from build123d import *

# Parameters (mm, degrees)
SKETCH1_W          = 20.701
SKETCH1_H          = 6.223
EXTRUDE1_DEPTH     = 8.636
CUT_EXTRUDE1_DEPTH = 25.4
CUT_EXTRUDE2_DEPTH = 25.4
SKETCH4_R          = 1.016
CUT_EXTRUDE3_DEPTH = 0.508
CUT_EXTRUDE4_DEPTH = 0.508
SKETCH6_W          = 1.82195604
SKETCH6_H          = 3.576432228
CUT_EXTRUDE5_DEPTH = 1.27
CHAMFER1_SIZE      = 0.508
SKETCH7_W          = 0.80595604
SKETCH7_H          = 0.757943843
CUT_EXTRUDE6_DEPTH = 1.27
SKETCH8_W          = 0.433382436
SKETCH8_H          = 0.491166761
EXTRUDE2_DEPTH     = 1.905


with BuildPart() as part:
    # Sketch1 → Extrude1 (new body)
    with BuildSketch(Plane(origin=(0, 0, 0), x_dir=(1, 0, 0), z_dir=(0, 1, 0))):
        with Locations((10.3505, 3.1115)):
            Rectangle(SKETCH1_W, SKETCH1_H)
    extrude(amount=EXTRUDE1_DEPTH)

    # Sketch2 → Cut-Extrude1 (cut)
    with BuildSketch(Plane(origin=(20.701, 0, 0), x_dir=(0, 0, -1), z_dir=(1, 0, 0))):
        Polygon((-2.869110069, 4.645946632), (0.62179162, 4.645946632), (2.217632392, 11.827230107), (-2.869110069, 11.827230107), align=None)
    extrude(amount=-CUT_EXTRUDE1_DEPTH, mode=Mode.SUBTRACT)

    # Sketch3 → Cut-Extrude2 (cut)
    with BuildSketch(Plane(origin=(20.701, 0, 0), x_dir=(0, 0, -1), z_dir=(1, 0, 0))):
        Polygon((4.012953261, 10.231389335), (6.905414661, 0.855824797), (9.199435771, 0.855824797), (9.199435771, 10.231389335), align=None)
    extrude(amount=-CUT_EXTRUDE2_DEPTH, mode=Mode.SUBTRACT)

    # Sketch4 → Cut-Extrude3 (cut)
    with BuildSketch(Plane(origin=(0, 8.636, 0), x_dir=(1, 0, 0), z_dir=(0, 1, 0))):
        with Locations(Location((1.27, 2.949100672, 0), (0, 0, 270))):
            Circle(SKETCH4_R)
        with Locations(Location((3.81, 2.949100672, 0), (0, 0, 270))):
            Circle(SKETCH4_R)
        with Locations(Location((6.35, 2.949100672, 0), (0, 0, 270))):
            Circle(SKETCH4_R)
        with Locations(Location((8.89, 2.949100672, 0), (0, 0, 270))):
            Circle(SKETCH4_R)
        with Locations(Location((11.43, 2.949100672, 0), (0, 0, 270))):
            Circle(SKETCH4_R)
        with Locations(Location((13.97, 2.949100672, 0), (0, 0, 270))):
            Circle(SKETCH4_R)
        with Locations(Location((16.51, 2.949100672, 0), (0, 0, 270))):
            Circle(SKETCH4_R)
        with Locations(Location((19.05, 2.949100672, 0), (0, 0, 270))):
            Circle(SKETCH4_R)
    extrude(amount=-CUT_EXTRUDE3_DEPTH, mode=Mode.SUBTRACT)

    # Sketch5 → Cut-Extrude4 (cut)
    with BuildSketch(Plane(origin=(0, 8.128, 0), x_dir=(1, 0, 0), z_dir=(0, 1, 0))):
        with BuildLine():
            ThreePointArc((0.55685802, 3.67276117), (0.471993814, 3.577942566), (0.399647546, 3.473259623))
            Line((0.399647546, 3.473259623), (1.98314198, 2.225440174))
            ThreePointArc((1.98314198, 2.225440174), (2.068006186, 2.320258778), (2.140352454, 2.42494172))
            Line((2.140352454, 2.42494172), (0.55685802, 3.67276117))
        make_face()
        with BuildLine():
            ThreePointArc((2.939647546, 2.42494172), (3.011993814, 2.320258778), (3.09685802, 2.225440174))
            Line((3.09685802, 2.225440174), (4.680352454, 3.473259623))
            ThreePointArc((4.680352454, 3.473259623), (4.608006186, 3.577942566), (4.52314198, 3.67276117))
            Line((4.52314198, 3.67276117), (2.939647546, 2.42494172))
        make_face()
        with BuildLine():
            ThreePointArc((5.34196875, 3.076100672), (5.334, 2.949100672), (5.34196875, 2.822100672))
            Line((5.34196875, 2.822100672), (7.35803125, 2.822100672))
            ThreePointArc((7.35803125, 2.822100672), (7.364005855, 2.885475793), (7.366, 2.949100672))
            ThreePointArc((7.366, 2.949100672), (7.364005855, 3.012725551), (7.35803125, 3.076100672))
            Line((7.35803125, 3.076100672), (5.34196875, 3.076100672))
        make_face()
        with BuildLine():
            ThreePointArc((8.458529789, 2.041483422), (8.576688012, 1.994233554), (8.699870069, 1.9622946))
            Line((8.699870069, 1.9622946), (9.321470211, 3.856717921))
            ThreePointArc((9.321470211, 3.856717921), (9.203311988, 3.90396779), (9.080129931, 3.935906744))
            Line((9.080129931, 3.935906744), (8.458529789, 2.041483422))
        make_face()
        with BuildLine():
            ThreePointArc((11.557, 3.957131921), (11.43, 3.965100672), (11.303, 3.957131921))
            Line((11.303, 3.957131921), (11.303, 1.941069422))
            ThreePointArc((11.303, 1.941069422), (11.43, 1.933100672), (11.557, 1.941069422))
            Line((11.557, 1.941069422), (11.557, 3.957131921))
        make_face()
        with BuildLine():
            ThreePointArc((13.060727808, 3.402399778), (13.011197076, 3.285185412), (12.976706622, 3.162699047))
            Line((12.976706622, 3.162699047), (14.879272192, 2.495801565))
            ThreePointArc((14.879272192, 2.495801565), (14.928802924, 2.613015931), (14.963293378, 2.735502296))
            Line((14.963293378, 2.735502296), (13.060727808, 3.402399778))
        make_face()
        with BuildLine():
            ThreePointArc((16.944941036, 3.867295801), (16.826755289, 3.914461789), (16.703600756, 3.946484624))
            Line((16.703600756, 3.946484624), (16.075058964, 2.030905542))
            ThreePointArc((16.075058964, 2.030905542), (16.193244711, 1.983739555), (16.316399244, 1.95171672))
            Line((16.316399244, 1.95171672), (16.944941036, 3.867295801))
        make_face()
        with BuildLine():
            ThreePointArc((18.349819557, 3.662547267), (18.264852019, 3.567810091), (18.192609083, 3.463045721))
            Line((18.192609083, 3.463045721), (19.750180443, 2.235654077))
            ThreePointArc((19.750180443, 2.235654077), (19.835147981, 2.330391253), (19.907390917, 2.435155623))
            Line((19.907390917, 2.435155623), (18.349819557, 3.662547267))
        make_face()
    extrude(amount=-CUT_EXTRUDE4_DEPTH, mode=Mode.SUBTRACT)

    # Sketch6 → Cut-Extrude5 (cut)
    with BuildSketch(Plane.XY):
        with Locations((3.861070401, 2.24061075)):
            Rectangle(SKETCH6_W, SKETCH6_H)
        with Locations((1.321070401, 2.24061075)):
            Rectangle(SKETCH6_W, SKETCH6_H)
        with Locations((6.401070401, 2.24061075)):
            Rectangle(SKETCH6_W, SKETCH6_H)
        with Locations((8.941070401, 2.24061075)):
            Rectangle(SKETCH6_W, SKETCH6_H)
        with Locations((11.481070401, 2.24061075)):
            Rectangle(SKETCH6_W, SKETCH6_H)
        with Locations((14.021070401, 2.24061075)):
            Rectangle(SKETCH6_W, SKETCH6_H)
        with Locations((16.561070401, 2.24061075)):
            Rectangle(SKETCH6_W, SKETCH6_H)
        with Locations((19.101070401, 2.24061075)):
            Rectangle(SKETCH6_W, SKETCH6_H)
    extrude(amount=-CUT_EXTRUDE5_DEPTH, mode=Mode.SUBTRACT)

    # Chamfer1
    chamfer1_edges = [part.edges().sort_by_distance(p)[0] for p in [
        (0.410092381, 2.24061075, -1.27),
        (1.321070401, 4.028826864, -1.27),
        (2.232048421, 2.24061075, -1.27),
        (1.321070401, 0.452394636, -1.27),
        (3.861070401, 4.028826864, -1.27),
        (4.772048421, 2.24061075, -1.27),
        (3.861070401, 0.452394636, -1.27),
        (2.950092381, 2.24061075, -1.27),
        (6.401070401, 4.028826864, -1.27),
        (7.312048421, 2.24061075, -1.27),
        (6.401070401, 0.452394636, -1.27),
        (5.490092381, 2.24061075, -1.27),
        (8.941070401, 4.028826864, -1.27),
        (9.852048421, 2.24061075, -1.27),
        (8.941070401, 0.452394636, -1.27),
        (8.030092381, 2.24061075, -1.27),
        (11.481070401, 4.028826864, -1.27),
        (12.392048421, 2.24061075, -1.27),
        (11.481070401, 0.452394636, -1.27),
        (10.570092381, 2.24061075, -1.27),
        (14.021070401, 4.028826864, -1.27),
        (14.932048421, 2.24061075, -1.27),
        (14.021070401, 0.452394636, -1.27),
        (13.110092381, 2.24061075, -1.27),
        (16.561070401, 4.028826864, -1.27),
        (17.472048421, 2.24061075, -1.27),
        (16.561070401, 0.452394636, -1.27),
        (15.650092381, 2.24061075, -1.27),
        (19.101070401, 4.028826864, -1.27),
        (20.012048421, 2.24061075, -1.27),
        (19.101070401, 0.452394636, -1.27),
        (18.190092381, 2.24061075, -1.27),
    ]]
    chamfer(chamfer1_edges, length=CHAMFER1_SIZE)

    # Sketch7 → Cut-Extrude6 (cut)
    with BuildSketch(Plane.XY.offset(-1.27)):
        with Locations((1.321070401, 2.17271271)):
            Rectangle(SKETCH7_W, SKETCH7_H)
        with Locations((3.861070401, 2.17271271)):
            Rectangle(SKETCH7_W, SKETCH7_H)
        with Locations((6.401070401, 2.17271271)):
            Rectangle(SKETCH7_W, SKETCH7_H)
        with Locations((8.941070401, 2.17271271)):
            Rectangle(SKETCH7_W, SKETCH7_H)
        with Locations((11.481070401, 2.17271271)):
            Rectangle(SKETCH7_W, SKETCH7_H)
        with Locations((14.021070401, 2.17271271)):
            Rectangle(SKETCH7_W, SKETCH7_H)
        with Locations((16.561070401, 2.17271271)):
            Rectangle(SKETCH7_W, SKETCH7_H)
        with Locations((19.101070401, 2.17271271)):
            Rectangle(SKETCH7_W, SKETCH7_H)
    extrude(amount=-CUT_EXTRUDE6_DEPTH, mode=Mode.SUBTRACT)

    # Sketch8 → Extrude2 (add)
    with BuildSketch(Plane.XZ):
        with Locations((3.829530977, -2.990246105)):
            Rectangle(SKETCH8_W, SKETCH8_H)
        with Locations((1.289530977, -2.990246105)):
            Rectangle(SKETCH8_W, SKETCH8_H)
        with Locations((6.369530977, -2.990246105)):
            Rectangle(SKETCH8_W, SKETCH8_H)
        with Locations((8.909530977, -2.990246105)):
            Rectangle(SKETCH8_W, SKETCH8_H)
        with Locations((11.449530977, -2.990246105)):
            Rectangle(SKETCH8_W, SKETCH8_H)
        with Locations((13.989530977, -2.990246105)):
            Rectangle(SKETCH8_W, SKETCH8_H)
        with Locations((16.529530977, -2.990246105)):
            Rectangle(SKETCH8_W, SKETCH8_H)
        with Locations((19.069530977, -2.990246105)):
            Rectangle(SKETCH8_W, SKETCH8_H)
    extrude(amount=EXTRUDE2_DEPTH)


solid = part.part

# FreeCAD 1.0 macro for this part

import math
import FreeCAD as App
import Part
import Sketcher
from FreeCAD import Vector
Q = App.Units.Quantity


def edges_at(feature, points):
    """Names of the edges that pass closest to the given points."""
    edges = feature.Shape.Edges
    near = lambda p: min(range(len(edges)), key=lambda i: edges[i].distToShape(Part.Vertex(*p))[0])
    return sorted({f"Edge{near(p) + 1}" for p in points})


def add_polygon(sketch, points):
    """Adds a closed chain of lines whose ends are joined by coincident constraints."""
    first, n = sketch.GeometryCount, len(points)
    for a, b in zip(points, points[1:] + points[:1]):
        sketch.addGeometry(Part.LineSegment(App.Vector(*a, 0), App.Vector(*b, 0)), False)
    for i in range(n):
        sketch.addConstraint(Sketcher.Constraint("Coincident", first + i, 2, first + (i + 1) % n, 1))

doc = App.newDocument("Part")
body = doc.addObject("PartDesign::Body", "Body")

# Sketch on XZ plane
sketch1 = doc.addObject("Sketcher::SketchObject", "Sketch")
body.addObject(sketch1)
sketch1.AttachmentSupport = (doc.XZ_Plane, [""])
sketch1.MapMode = "FlatFace"
add_polygon(sketch1, [(0, -6), (0, 0), (21, 0), (21, -6)])  # lines 0-3
sketch1.addConstraint([
    Sketcher.Constraint("Vertical", 0),
    Sketcher.Constraint("Horizontal", 1),
    Sketcher.Constraint("Vertical", 2),
    Sketcher.Constraint("Horizontal", 3),
    Sketcher.Constraint("Coincident", 0, 2, -1, 1),
    Sketcher.Constraint("DistanceX", 1, 1, 1, 2, Q("0.815 in")),
    Sketcher.Constraint("DistanceY", 0, 1, 0, 2, Q("0.245 in")),
])
pad1 = doc.addObject("PartDesign::Pad", "Pad")
body.addObject(pad1)
pad1.Profile = sketch1
pad1.Length = Q("0.34 in")
pad1.Reversed = True

# Sketch on YZ plane
sketch2 = doc.addObject("Sketcher::SketchObject", "Sketch001")
body.addObject(sketch2)
sketch2.AttachmentSupport = (doc.YZ_Plane, [""])
sketch2.MapMode = "FlatFace"
sketch2.AttachmentOffset = App.Placement(Vector(0, 0, 0.815 * 25.4), App.Rotation())
add_polygon(sketch2, [(4.6, 2.9), (4.6, -0.6), (11.8, -2.2), (11.8, 2.9)])  # lines 0-3
sketch2.addConstraint([
    Sketcher.Constraint("Vertical", 0),
    Sketcher.Constraint("Vertical", 2),
    Sketcher.Constraint("Horizontal", 3),
    Sketcher.Constraint("DistanceY", 0, 2, 0, 1, 3.490902),
    Sketcher.Constraint("DistanceX", 3, 2, 3, 1, 7.181283),
    Sketcher.Constraint("DistanceY", 2, 1, 2, 2, 5.086742),
    Sketcher.Constraint("DistanceY", 0, 2, -1, 1, 0.621792),
    Sketcher.Constraint("DistanceX", -1, 1, 1, 2, 11.82723),
])
pocket1 = doc.addObject("PartDesign::Pocket", "Pocket")
body.addObject(pocket1)
pocket1.Profile = sketch2
pocket1.Length = Q("1 in")

# Sketch on YZ plane
sketch3 = doc.addObject("Sketcher::SketchObject", "Sketch002")
body.addObject(sketch3)
sketch3.AttachmentSupport = (doc.YZ_Plane, [""])
sketch3.MapMode = "FlatFace"
sketch3.AttachmentOffset = App.Placement(Vector(0, 0, 0.815 * 25.4), App.Rotation())
add_polygon(sketch3, [(10.2, -4), (0.9, -6.9), (0.9, -9.2), (10.2, -9.2)])  # lines 0-3
sketch3.addConstraint([
    Sketcher.Constraint("Vertical", 1),
    Sketcher.Constraint("Horizontal", 2),
    Sketcher.Constraint("Vertical", 3),
    Sketcher.Constraint("DistanceY", 1, 2, 1, 1, 2.294021),
    Sketcher.Constraint("DistanceX", 2, 1, 2, 2, 9.375565),
    Sketcher.Constraint("DistanceY", 3, 1, 3, 2, 5.186483),
    Sketcher.Constraint("DistanceX", -1, 1, 2, 2, 10.231389),
    Sketcher.Constraint("DistanceY", 0, 2, -1, 1, 6.905415),
])
pocket2 = doc.addObject("PartDesign::Pocket", "Pocket001")
body.addObject(pocket2)
pocket2.Profile = sketch3
pocket2.Length = Q("1 in")

# Sketch on XZ plane
sketch4 = doc.addObject("Sketcher::SketchObject", "Sketch003")
body.addObject(sketch4)
sketch4.AttachmentSupport = (doc.XZ_Plane, [""])
sketch4.MapMode = "FlatFace"
sketch4.AttachmentOffset = App.Placement(Vector(0, 0, -0.34 * 25.4), App.Rotation())
sketch4.addGeometry([
    Part.Circle(Vector(1.3, -2.9, 0), Vector(0, 0, 1), 1),  # 0
    Part.Circle(Vector(3.8, -2.9, 0), Vector(0, 0, 1), 1),  # 1
    Part.Circle(Vector(6.3, -2.9, 0), Vector(0, 0, 1), 1),  # 2
    Part.Circle(Vector(8.9, -2.9, 0), Vector(0, 0, 1), 1),  # 3
    Part.Circle(Vector(11.4, -2.9, 0), Vector(0, 0, 1), 1),  # 4
    Part.Circle(Vector(14, -2.9, 0), Vector(0, 0, 1), 1),  # 5
    Part.Circle(Vector(16.5, -2.9, 0), Vector(0, 0, 1), 1),  # 6
    Part.Circle(Vector(19.1, -2.9, 0), Vector(0, 0, 1), 1),  # 7
], False)
sketch4.addConstraint([
    Sketcher.Constraint("Equal", 0, 1),
    Sketcher.Constraint("Equal", 1, 2),
    Sketcher.Constraint("Equal", 2, 3),
    Sketcher.Constraint("Equal", 3, 4),
    Sketcher.Constraint("Equal", 4, 5),
    Sketcher.Constraint("Equal", 5, 6),
    Sketcher.Constraint("Equal", 6, 7),
    Sketcher.Constraint("Horizontal", 0, 3, 1, 3),
    Sketcher.Constraint("Horizontal", 1, 3, 2, 3),
    Sketcher.Constraint("Horizontal", 2, 3, 3, 3),
    Sketcher.Constraint("Horizontal", 3, 3, 4, 3),
    Sketcher.Constraint("Horizontal", 4, 3, 5, 3),
    Sketcher.Constraint("Horizontal", 5, 3, 6, 3),
    Sketcher.Constraint("Horizontal", 6, 3, 7, 3),
    Sketcher.Constraint("Diameter", 0, Q("0.08 in")),
    Sketcher.Constraint("DistanceX", 0, 3, 1, 3, Q("0.1 in")),
    Sketcher.Constraint("DistanceX", 1, 3, 2, 3, Q("0.1 in")),
    Sketcher.Constraint("DistanceX", 2, 3, 3, 3, Q("0.1 in")),
    Sketcher.Constraint("DistanceX", 3, 3, 4, 3, Q("0.1 in")),
    Sketcher.Constraint("DistanceX", 4, 3, 5, 3, Q("0.1 in")),
    Sketcher.Constraint("DistanceX", 5, 3, 6, 3, Q("0.1 in")),
    Sketcher.Constraint("DistanceX", 6, 3, 7, 3, Q("0.1 in")),
    Sketcher.Constraint("DistanceX", -1, 1, 0, 3, Q("0.05 in")),
    Sketcher.Constraint("DistanceY", 0, 3, -1, 1, 2.949101),
])
pocket3 = doc.addObject("PartDesign::Pocket", "Pocket002")
body.addObject(pocket3)
pocket3.Profile = sketch4
pocket3.Length = Q("0.02 in")
pocket3.Reversed = True

# Sketch on XZ plane
sketch5 = doc.addObject("Sketcher::SketchObject", "Sketch004")
body.addObject(sketch5)
sketch5.AttachmentSupport = (doc.XZ_Plane, [""])
sketch5.MapMode = "FlatFace"
sketch5.AttachmentOffset = App.Placement(Vector(0, 0, -0.32 * 25.4), App.Rotation())
sketch5.addGeometry([
    Part.ArcOfCircle(Part.Circle(Vector(1.27, -2.95, 0), Vector(0, 0, 1), 1.02), math.radians(-148.94), math.radians(-134.58)),  # 0
    Part.LineSegment(Vector(0.4, -3.47, 0), Vector(1.98, -2.23, 0)),  # 1
    Part.ArcOfCircle(Part.Circle(Vector(1.27, -2.95, 0), Vector(0, 0, 1), 1.02), math.radians(31.06), math.radians(45.42)),  # 2
    Part.LineSegment(Vector(2.14, -2.42, 0), Vector(0.56, -3.67, 0)),  # 3
    Part.ArcOfCircle(Part.Circle(Vector(3.81, -2.95, 0), Vector(0, 0, 1), 1.02), math.radians(134.58), math.radians(148.94)),  # 4
    Part.LineSegment(Vector(3.1, -2.23, 0), Vector(4.68, -3.47, 0)),  # 5
    Part.ArcOfCircle(Part.Circle(Vector(3.81, -2.95, 0), Vector(0, 0, 1), 1.02), math.radians(-45.42), math.radians(-31.06)),  # 6
    Part.LineSegment(Vector(4.52, -3.67, 0), Vector(2.94, -2.42, 0)),  # 7
    Part.ArcOfCircle(Part.Circle(Vector(6.35, -2.95, 0), Vector(0, 0, 1), 1.02), math.radians(172.82), math.radians(187.18)),  # 8
    Part.LineSegment(Vector(5.34, -2.82, 0), Vector(7.36, -2.82, 0)),  # 9
    Part.ArcOfCircle(Part.Circle(Vector(6.35, -2.95, 0), Vector(0, 0, 1), 1.02), math.radians(0), math.radians(7.18)),  # 10
    Part.ArcOfCircle(Part.Circle(Vector(6.35, -2.95, 0), Vector(0, 0, 1), 1.02), math.radians(-7.18), math.radians(0)),  # 11
    Part.LineSegment(Vector(7.36, -3.08, 0), Vector(5.34, -3.08, 0)),  # 12
    Part.ArcOfCircle(Part.Circle(Vector(8.89, -2.95, 0), Vector(0, 0, 1), 1), math.radians(100.91), math.radians(115.43)),  # 13
    Part.LineSegment(Vector(8.7, -1.96, 0), Vector(9.32, -3.86, 0)),  # 14
    Part.ArcOfCircle(Part.Circle(Vector(8.89, -2.95, 0), Vector(0, 0, 1), 1), math.radians(-79.09), math.radians(-64.57)),  # 15
    Part.LineSegment(Vector(9.08, -3.94, 0), Vector(8.46, -2.04, 0)),  # 16
    Part.ArcOfCircle(Part.Circle(Vector(11.43, -2.95, 0), Vector(0, 0, 1), 1.02), math.radians(-97.18), math.radians(-82.82)),  # 17
    Part.LineSegment(Vector(11.3, -3.96, 0), Vector(11.3, -1.94, 0)),  # 18
    Part.ArcOfCircle(Part.Circle(Vector(11.43, -2.95, 0), Vector(0, 0, 1), 1.02), math.radians(82.82), math.radians(97.18)),  # 19
    Part.LineSegment(Vector(11.56, -1.94, 0), Vector(11.56, -3.96, 0)),  # 20
    Part.ArcOfCircle(Part.Circle(Vector(13.97, -2.95, 0), Vector(0, 0, 1), 1.02), math.radians(-167.86), math.radians(-153.5)),  # 21
    Part.LineSegment(Vector(12.98, -3.16, 0), Vector(14.88, -2.5, 0)),  # 22
    Part.ArcOfCircle(Part.Circle(Vector(13.97, -2.95, 0), Vector(0, 0, 1), 1.02), math.radians(12.14), math.radians(26.5)),  # 23
    Part.LineSegment(Vector(14.96, -2.74, 0), Vector(13.06, -3.4, 0)),  # 24
    Part.ArcOfCircle(Part.Circle(Vector(16.51, -2.95, 0), Vector(0, 0, 1), 1.02), math.radians(-79.02), math.radians(-64.65)),  # 25
    Part.LineSegment(Vector(16.7, -3.95, 0), Vector(16.08, -2.03, 0)),  # 26
    Part.ArcOfCircle(Part.Circle(Vector(16.51, -2.95, 0), Vector(0, 0, 1), 1.02), math.radians(100.98), math.radians(115.35)),  # 27
    Part.LineSegment(Vector(16.32, -1.95, 0), Vector(16.94, -3.87, 0)),  # 28
    Part.ArcOfCircle(Part.Circle(Vector(19.05, -2.95, 0), Vector(0, 0, 1), 1), math.radians(-149.06), math.radians(-134.46)),  # 29
    Part.LineSegment(Vector(18.19, -3.46, 0), Vector(19.75, -2.24, 0)),  # 30
    Part.ArcOfCircle(Part.Circle(Vector(19.05, -2.95, 0), Vector(0, 0, 1), 1), math.radians(30.94), math.radians(45.54)),  # 31
    Part.LineSegment(Vector(19.91, -2.44, 0), Vector(18.35, -3.66, 0)),  # 32
], False)
sketch5.addConstraint([
    Sketcher.Constraint("Coincident", 0, 1, 1, 1),
    Sketcher.Constraint("Coincident", 1, 2, 2, 2),
    Sketcher.Constraint("Coincident", 2, 1, 3, 1),
    Sketcher.Constraint("Coincident", 3, 2, 0, 2),
    Sketcher.Constraint("Coincident", 4, 1, 5, 1),
    Sketcher.Constraint("Coincident", 5, 2, 6, 2),
    Sketcher.Constraint("Coincident", 6, 1, 7, 1),
    Sketcher.Constraint("Coincident", 7, 2, 4, 2),
    Sketcher.Constraint("Coincident", 8, 1, 9, 1),
    Sketcher.Constraint("Coincident", 9, 2, 10, 2),
    Sketcher.Constraint("Tangent", 10, 1, 11, 2),
    Sketcher.Constraint("Coincident", 11, 1, 12, 1),
    Sketcher.Constraint("Coincident", 12, 2, 8, 2),
    Sketcher.Constraint("Coincident", 13, 1, 14, 1),
    Sketcher.Constraint("Coincident", 14, 2, 15, 2),
    Sketcher.Constraint("Coincident", 15, 1, 16, 1),
    Sketcher.Constraint("Coincident", 16, 2, 13, 2),
    Sketcher.Constraint("Coincident", 17, 1, 18, 1),
    Sketcher.Constraint("Coincident", 18, 2, 19, 2),
    Sketcher.Constraint("Coincident", 19, 1, 20, 1),
    Sketcher.Constraint("Coincident", 20, 2, 17, 2),
    Sketcher.Constraint("Coincident", 21, 1, 22, 1),
    Sketcher.Constraint("Coincident", 22, 2, 23, 2),
    Sketcher.Constraint("Coincident", 23, 1, 24, 1),
    Sketcher.Constraint("Coincident", 24, 2, 21, 2),
    Sketcher.Constraint("Coincident", 25, 1, 26, 1),
    Sketcher.Constraint("Coincident", 26, 2, 27, 2),
    Sketcher.Constraint("Coincident", 27, 1, 28, 1),
    Sketcher.Constraint("Coincident", 28, 2, 25, 2),
    Sketcher.Constraint("Coincident", 29, 1, 30, 1),
    Sketcher.Constraint("Coincident", 30, 2, 31, 2),
    Sketcher.Constraint("Coincident", 31, 1, 32, 1),
    Sketcher.Constraint("Coincident", 32, 2, 29, 2),
    Sketcher.Constraint("Horizontal", 9),
    Sketcher.Constraint("Horizontal", 12),
    Sketcher.Constraint("Vertical", 18),
    Sketcher.Constraint("Vertical", 20),
    Sketcher.Constraint("Coincident", 2, 3, 0, 3),
    Sketcher.Constraint("Coincident", 6, 3, 4, 3),
    Sketcher.Constraint("Coincident", 10, 3, 8, 3),
    Sketcher.Constraint("Coincident", 15, 3, 13, 3),
    Sketcher.Constraint("Coincident", 19, 3, 17, 3),
    Sketcher.Constraint("Coincident", 23, 3, 21, 3),
    Sketcher.Constraint("Coincident", 27, 3, 25, 3),
    Sketcher.Constraint("Coincident", 31, 3, 29, 3),
    Sketcher.Constraint("Equal", 0, 2),
    Sketcher.Constraint("Equal", 2, 4),
    Sketcher.Constraint("Equal", 4, 6),
    Sketcher.Constraint("Equal", 6, 8),
    Sketcher.Constraint("Equal", 8, 10),
    Sketcher.Constraint("Equal", 10, 11),
    Sketcher.Constraint("Equal", 13, 15),
    Sketcher.Constraint("Equal", 11, 17),
    Sketcher.Constraint("Equal", 17, 19),
    Sketcher.Constraint("Equal", 19, 21),
    Sketcher.Constraint("Equal", 21, 23),
    Sketcher.Constraint("Equal", 23, 25),
    Sketcher.Constraint("Equal", 25, 27),
    Sketcher.Constraint("Equal", 29, 31),
    Sketcher.Constraint("Parallel", 1, 3),
    Sketcher.Constraint("Parallel", 5, 7),
    Sketcher.Constraint("Parallel", 14, 16),
    Sketcher.Constraint("Parallel", 22, 24),
    Sketcher.Constraint("Parallel", 16, 26),
    Sketcher.Constraint("Parallel", 26, 28),
    Sketcher.Constraint("Parallel", 3, 30),
    Sketcher.Constraint("Parallel", 30, 32),
    Sketcher.Constraint("Horizontal", 2, 3, 4, 3),
    Sketcher.Constraint("Horizontal", 6, 3, 8, 3),
    Sketcher.Constraint("Horizontal", 11, 3, 13, 3),
    Sketcher.Constraint("Horizontal", 15, 3, 17, 3),
    Sketcher.Constraint("Horizontal", 19, 3, 21, 3),
    Sketcher.Constraint("Horizontal", 23, 3, 25, 3),
    Sketcher.Constraint("Horizontal", 27, 3, 29, 3),
    Sketcher.Constraint("Horizontal", 1, 2, 4, 1),
    Sketcher.Constraint("Horizontal", 0, 1, 5, 2),
    Sketcher.Constraint("Horizontal", 3, 2, 6, 1),
    Sketcher.Constraint("Horizontal", 31, 3, 10, 1),
    Sketcher.Constraint("Horizontal", 18, 2, 19, 1),
    Sketcher.Constraint("Vertical", 9, 2, 11, 1),
    Sketcher.Constraint("Equal", 12, 18),
    Sketcher.Constraint("Equal", 1, 3),
    Sketcher.Constraint("Equal", 14, 16),
    Sketcher.Constraint("Equal", 7, 22),
    Sketcher.Constraint("Equal", 22, 24),
    Sketcher.Constraint("Equal", 24, 26),
    Sketcher.Constraint("Equal", 26, 28),
    Sketcher.Constraint("Equal", 30, 32),
    Sketcher.Constraint("Radius", 0, Q("0.04 in")),
    Sketcher.Constraint("DistanceX", 2, 3, 4, 3, Q("0.1 in")),
    Sketcher.Constraint("DistanceX", 6, 3, 8, 3, Q("0.1 in")),
    Sketcher.Constraint("DistanceX", 8, 3, 13, 3, Q("0.1 in")),
    Sketcher.Constraint("DistanceX", 15, 3, 17, 3, Q("0.1 in")),
    Sketcher.Constraint("DistanceX", 17, 3, 21, 3, Q("0.1 in")),
    Sketcher.Constraint("DistanceX", 21, 3, 25, 3, Q("0.1 in")),
    Sketcher.Constraint("DistanceX", 27, 3, 29, 3, Q("0.1 in")),
    Sketcher.Constraint("DistanceX", -1, 1, 0, 3, Q("0.05 in")),
    Sketcher.Constraint("DistanceY", 11, 1, 9, 2, Q("0.01 in")),
    Sketcher.Constraint("Radius", 29, 0.999629),
    Sketcher.Constraint("Radius", 13, 1.004956),
    Sketcher.Constraint("DistanceY", 0, 3, -1, 1, 2.949101),
    Sketcher.Constraint("DistanceY", 21, 1, -1, 1, 3.162699),
    Sketcher.Constraint("DistanceY", 22, 2, -1, 1, 2.495802),
    Sketcher.Constraint("DistanceX", -1, 1, 25, 1, 16.703601),
    Sketcher.Constraint("DistanceY", 2, 1, 1, 2, 0.199502),
    Sketcher.Constraint("DistanceX", 13, 1, 14, 2, 0.6216),
    Sketcher.Constraint("DistanceY", 31, 1, 30, 2, 0.199502),
])
pocket4 = doc.addObject("PartDesign::Pocket", "Pocket003")
body.addObject(pocket4)
pocket4.Profile = sketch5
pocket4.Length = Q("0.02 in")
pocket4.Reversed = True

# Sketch on XY plane
sketch6 = doc.addObject("Sketcher::SketchObject", "Sketch005")
body.addObject(sketch6)
sketch6.AttachmentSupport = (doc.XY_Plane, [""])
sketch6.MapMode = "FlatFace"
add_polygon(sketch6, [(3, 4), (3, 0.5), (4.8, 0.5), (4.8, 4)])  # lines 0-3
add_polygon(sketch6, [(0.4, 4), (0.4, 0.5), (2.2, 0.5), (2.2, 4)])  # lines 4-7
add_polygon(sketch6, [(5.5, 4), (5.5, 0.5), (7.3, 0.5), (7.3, 4)])  # lines 8-11
add_polygon(sketch6, [(8, 4), (8, 0.5), (9.9, 0.5), (9.9, 4)])  # lines 12-15
add_polygon(sketch6, [(10.6, 4), (10.6, 0.5), (12.4, 0.5), (12.4, 4)])  # lines 16-19
add_polygon(sketch6, [(13.1, 4), (13.1, 0.5), (14.9, 0.5), (14.9, 4)])  # lines 20-23
add_polygon(sketch6, [(15.7, 4), (15.7, 0.5), (17.5, 0.5), (17.5, 4)])  # lines 24-27
add_polygon(sketch6, [(18.2, 4), (18.2, 0.5), (20, 0.5), (20, 4)])  # lines 28-31
sketch6.addConstraint([
    Sketcher.Constraint("Vertical", 0),
    Sketcher.Constraint("Horizontal", 1),
    Sketcher.Constraint("Vertical", 2),
    Sketcher.Constraint("Horizontal", 3),
    Sketcher.Constraint("Vertical", 4),
    Sketcher.Constraint("Horizontal", 5),
    Sketcher.Constraint("Vertical", 6),
    Sketcher.Constraint("Horizontal", 7),
    Sketcher.Constraint("Vertical", 8),
    Sketcher.Constraint("Horizontal", 9),
    Sketcher.Constraint("Vertical", 10),
    Sketcher.Constraint("Horizontal", 11),
    Sketcher.Constraint("Vertical", 12),
    Sketcher.Constraint("Horizontal", 13),
    Sketcher.Constraint("Vertical", 14),
    Sketcher.Constraint("Horizontal", 15),
    Sketcher.Constraint("Vertical", 16),
    Sketcher.Constraint("Horizontal", 17),
    Sketcher.Constraint("Vertical", 18),
    Sketcher.Constraint("Horizontal", 19),
    Sketcher.Constraint("Vertical", 20),
    Sketcher.Constraint("Horizontal", 21),
    Sketcher.Constraint("Vertical", 22),
    Sketcher.Constraint("Horizontal", 23),
    Sketcher.Constraint("Vertical", 24),
    Sketcher.Constraint("Horizontal", 25),
    Sketcher.Constraint("Vertical", 26),
    Sketcher.Constraint("Horizontal", 27),
    Sketcher.Constraint("Vertical", 28),
    Sketcher.Constraint("Horizontal", 29),
    Sketcher.Constraint("Vertical", 30),
    Sketcher.Constraint("Horizontal", 31),
    Sketcher.Constraint("Horizontal", 1, 2, 4, 2),
    Sketcher.Constraint("Horizontal", 3, 2, 6, 2),
    Sketcher.Constraint("Horizontal", 5, 2, 8, 2),
    Sketcher.Constraint("Horizontal", 7, 2, 10, 2),
    Sketcher.Constraint("Horizontal", 9, 2, 12, 2),
    Sketcher.Constraint("Horizontal", 11, 2, 14, 2),
    Sketcher.Constraint("Horizontal", 13, 2, 16, 2),
    Sketcher.Constraint("Horizontal", 15, 2, 18, 2),
    Sketcher.Constraint("Horizontal", 17, 2, 20, 2),
    Sketcher.Constraint("Horizontal", 19, 2, 22, 2),
    Sketcher.Constraint("Horizontal", 21, 2, 24, 2),
    Sketcher.Constraint("Horizontal", 23, 2, 26, 2),
    Sketcher.Constraint("Horizontal", 25, 2, 28, 2),
    Sketcher.Constraint("Horizontal", 27, 2, 30, 2),
    Sketcher.Constraint("Equal", 3, 5),
    Sketcher.Constraint("Equal", 7, 9),
    Sketcher.Constraint("Equal", 11, 13),
    Sketcher.Constraint("Equal", 15, 17),
    Sketcher.Constraint("Equal", 19, 21),
    Sketcher.Constraint("Equal", 23, 25),
    Sketcher.Constraint("Equal", 27, 29),
    Sketcher.Constraint("DistanceX", 4, 2, 0, 2, Q("0.1 in")),
    Sketcher.Constraint("DistanceX", 0, 2, 8, 2, Q("0.1 in")),
    Sketcher.Constraint("DistanceX", 8, 2, 12, 2, Q("0.1 in")),
    Sketcher.Constraint("DistanceX", 12, 2, 16, 2, Q("0.1 in")),
    Sketcher.Constraint("DistanceX", 16, 2, 20, 2, Q("0.1 in")),
    Sketcher.Constraint("DistanceX", 20, 2, 24, 2, Q("0.1 in")),
    Sketcher.Constraint("DistanceX", 24, 2, 28, 2, Q("0.1 in")),
    Sketcher.Constraint("DistanceX", 1, 1, 1, 2, 1.821956),
    Sketcher.Constraint("DistanceY", 0, 2, 0, 1, 3.576432),
    Sketcher.Constraint("DistanceX", -1, 1, 1, 2, 4.772048),
    Sketcher.Constraint("DistanceY", -1, 1, 0, 2, 0.452395),
])
pocket5 = doc.addObject("PartDesign::Pocket", "Pocket004")
body.addObject(pocket5)
pocket5.Profile = sketch6
pocket5.Length = Q("0.05 in")
doc.recompute()

chamfer = doc.addObject("PartDesign::Chamfer", "Chamfer")
body.addObject(chamfer)
chamfer.Base = (pocket5, edges_at(pocket5, [
    (0.41, 2.241, -1.27),
    (1.321, 4.029, -1.27),
    (2.232, 2.241, -1.27),
    (1.321, 0.452, -1.27),
    (3.861, 4.029, -1.27),
    (4.772, 2.241, -1.27),
    (3.861, 0.452, -1.27),
    (2.95, 2.241, -1.27),
    (6.401, 4.029, -1.27),
    (7.312, 2.241, -1.27),
    (6.401, 0.452, -1.27),
    (5.49, 2.241, -1.27),
    (8.941, 4.029, -1.27),
    (9.852, 2.241, -1.27),
    (8.941, 0.452, -1.27),
    (8.03, 2.241, -1.27),
    (11.481, 4.029, -1.27),
    (12.392, 2.241, -1.27),
    (11.481, 0.452, -1.27),
    (10.57, 2.241, -1.27),
    (14.021, 4.029, -1.27),
    (14.932, 2.241, -1.27),
    (14.021, 0.452, -1.27),
    (13.11, 2.241, -1.27),
    (16.561, 4.029, -1.27),
    (17.472, 2.241, -1.27),
    (16.561, 0.452, -1.27),
    (15.65, 2.241, -1.27),
    (19.101, 4.029, -1.27),
    (20.012, 2.241, -1.27),
    (19.101, 0.452, -1.27),
    (18.19, 2.241, -1.27),
]))
chamfer.Size = Q("0.02 in")

# Sketch on XY plane
sketch7 = doc.addObject("Sketcher::SketchObject", "Sketch006")
body.addObject(sketch7)
sketch7.AttachmentSupport = (doc.XY_Plane, [""])
sketch7.MapMode = "FlatFace"
sketch7.AttachmentOffset = App.Placement(Vector(0, 0, -0.05 * 25.4), App.Rotation())
add_polygon(sketch7, [(0.9, 2.6), (0.9, 1.8), (1.7, 1.8), (1.7, 2.6)])  # lines 0-3
add_polygon(sketch7, [(3.5, 2.6), (3.5, 1.8), (4.3, 1.8), (4.3, 2.6)])  # lines 4-7
add_polygon(sketch7, [(6, 2.6), (6, 1.8), (6.8, 1.8), (6.8, 2.6)])  # lines 8-11
add_polygon(sketch7, [(8.5, 2.6), (8.5, 1.8), (9.3, 1.8), (9.3, 2.6)])  # lines 12-15
add_polygon(sketch7, [(11.1, 2.6), (11.1, 1.8), (11.9, 1.8), (11.9, 2.6)])  # lines 16-19
add_polygon(sketch7, [(13.6, 2.6), (13.6, 1.8), (14.4, 1.8), (14.4, 2.6)])  # lines 20-23
add_polygon(sketch7, [(16.2, 2.6), (16.2, 1.8), (17, 1.8), (17, 2.6)])  # lines 24-27
add_polygon(sketch7, [(18.7, 2.6), (18.7, 1.8), (19.5, 1.8), (19.5, 2.6)])  # lines 28-31
sketch7.addConstraint([
    Sketcher.Constraint("Vertical", 0),
    Sketcher.Constraint("Horizontal", 1),
    Sketcher.Constraint("Vertical", 2),
    Sketcher.Constraint("Horizontal", 3),
    Sketcher.Constraint("Vertical", 4),
    Sketcher.Constraint("Horizontal", 5),
    Sketcher.Constraint("Vertical", 6),
    Sketcher.Constraint("Horizontal", 7),
    Sketcher.Constraint("Vertical", 8),
    Sketcher.Constraint("Horizontal", 9),
    Sketcher.Constraint("Vertical", 10),
    Sketcher.Constraint("Horizontal", 11),
    Sketcher.Constraint("Vertical", 12),
    Sketcher.Constraint("Horizontal", 13),
    Sketcher.Constraint("Vertical", 14),
    Sketcher.Constraint("Horizontal", 15),
    Sketcher.Constraint("Vertical", 16),
    Sketcher.Constraint("Horizontal", 17),
    Sketcher.Constraint("Vertical", 18),
    Sketcher.Constraint("Horizontal", 19),
    Sketcher.Constraint("Vertical", 20),
    Sketcher.Constraint("Horizontal", 21),
    Sketcher.Constraint("Vertical", 22),
    Sketcher.Constraint("Horizontal", 23),
    Sketcher.Constraint("Vertical", 24),
    Sketcher.Constraint("Horizontal", 25),
    Sketcher.Constraint("Vertical", 26),
    Sketcher.Constraint("Horizontal", 27),
    Sketcher.Constraint("Vertical", 28),
    Sketcher.Constraint("Horizontal", 29),
    Sketcher.Constraint("Vertical", 30),
    Sketcher.Constraint("Horizontal", 31),
    Sketcher.Constraint("Horizontal", 1, 2, 4, 2),
    Sketcher.Constraint("Horizontal", 3, 2, 6, 2),
    Sketcher.Constraint("Horizontal", 5, 2, 8, 2),
    Sketcher.Constraint("Horizontal", 7, 2, 10, 2),
    Sketcher.Constraint("Horizontal", 9, 2, 12, 2),
    Sketcher.Constraint("Horizontal", 11, 2, 14, 2),
    Sketcher.Constraint("Horizontal", 13, 2, 16, 2),
    Sketcher.Constraint("Horizontal", 15, 2, 18, 2),
    Sketcher.Constraint("Horizontal", 17, 2, 20, 2),
    Sketcher.Constraint("Horizontal", 19, 2, 22, 2),
    Sketcher.Constraint("Horizontal", 21, 2, 24, 2),
    Sketcher.Constraint("Horizontal", 23, 2, 26, 2),
    Sketcher.Constraint("Horizontal", 25, 2, 28, 2),
    Sketcher.Constraint("Horizontal", 27, 2, 30, 2),
    Sketcher.Constraint("Equal", 3, 5),
    Sketcher.Constraint("Equal", 7, 9),
    Sketcher.Constraint("Equal", 11, 13),
    Sketcher.Constraint("Equal", 15, 17),
    Sketcher.Constraint("Equal", 19, 21),
    Sketcher.Constraint("Equal", 23, 25),
    Sketcher.Constraint("Equal", 27, 29),
    Sketcher.Constraint("DistanceX", 0, 2, 4, 2, Q("0.1 in")),
    Sketcher.Constraint("DistanceX", 4, 2, 8, 2, Q("0.1 in")),
    Sketcher.Constraint("DistanceX", 8, 2, 12, 2, Q("0.1 in")),
    Sketcher.Constraint("DistanceX", 12, 2, 16, 2, Q("0.1 in")),
    Sketcher.Constraint("DistanceX", 16, 2, 20, 2, Q("0.1 in")),
    Sketcher.Constraint("DistanceX", 20, 2, 24, 2, Q("0.1 in")),
    Sketcher.Constraint("DistanceX", 24, 2, 28, 2, Q("0.1 in")),
    Sketcher.Constraint("DistanceX", 1, 1, 1, 2, 0.805956),
    Sketcher.Constraint("DistanceY", 0, 2, 0, 1, 0.757944),
    Sketcher.Constraint("DistanceY", -1, 1, 0, 2, 1.793741),
    Sketcher.Constraint("DistanceX", -1, 1, 1, 2, 1.724048),
])
pocket6 = doc.addObject("PartDesign::Pocket", "Pocket005")
body.addObject(pocket6)
pocket6.Profile = sketch7
pocket6.Length = Q("0.05 in")

# Sketch on XZ plane
sketch8 = doc.addObject("Sketcher::SketchObject", "Sketch007")
body.addObject(sketch8)
sketch8.AttachmentSupport = (doc.XZ_Plane, [""])
sketch8.MapMode = "FlatFace"
add_polygon(sketch8, [(3.61, -2.74), (3.61, -3.24), (4.05, -3.24), (4.05, -2.74)])  # lines 0-3
add_polygon(sketch8, [(1.07, -2.74), (1.07, -3.24), (1.51, -3.24), (1.51, -2.74)])  # lines 4-7
add_polygon(sketch8, [(6.15, -2.74), (6.15, -3.24), (6.59, -3.24), (6.59, -2.74)])  # lines 8-11
add_polygon(sketch8, [(8.69, -2.74), (8.69, -3.24), (9.13, -3.24), (9.13, -2.74)])  # lines 12-15
add_polygon(sketch8, [(11.23, -2.74), (11.23, -3.24), (11.67, -3.24), (11.67, -2.74)])  # lines 16-19
add_polygon(sketch8, [(13.77, -2.74), (13.77, -3.24), (14.21, -3.24), (14.21, -2.74)])  # lines 20-23
add_polygon(sketch8, [(16.31, -2.74), (16.31, -3.24), (16.75, -3.24), (16.75, -2.74)])  # lines 24-27
add_polygon(sketch8, [(18.85, -2.74), (18.85, -3.24), (19.29, -3.24), (19.29, -2.74)])  # lines 28-31
sketch8.addConstraint([
    Sketcher.Constraint("Vertical", 0),
    Sketcher.Constraint("Horizontal", 1),
    Sketcher.Constraint("Vertical", 2),
    Sketcher.Constraint("Horizontal", 3),
    Sketcher.Constraint("Vertical", 4),
    Sketcher.Constraint("Horizontal", 5),
    Sketcher.Constraint("Vertical", 6),
    Sketcher.Constraint("Horizontal", 7),
    Sketcher.Constraint("Vertical", 8),
    Sketcher.Constraint("Horizontal", 9),
    Sketcher.Constraint("Vertical", 10),
    Sketcher.Constraint("Horizontal", 11),
    Sketcher.Constraint("Vertical", 12),
    Sketcher.Constraint("Horizontal", 13),
    Sketcher.Constraint("Vertical", 14),
    Sketcher.Constraint("Horizontal", 15),
    Sketcher.Constraint("Vertical", 16),
    Sketcher.Constraint("Horizontal", 17),
    Sketcher.Constraint("Vertical", 18),
    Sketcher.Constraint("Horizontal", 19),
    Sketcher.Constraint("Vertical", 20),
    Sketcher.Constraint("Horizontal", 21),
    Sketcher.Constraint("Vertical", 22),
    Sketcher.Constraint("Horizontal", 23),
    Sketcher.Constraint("Vertical", 24),
    Sketcher.Constraint("Horizontal", 25),
    Sketcher.Constraint("Vertical", 26),
    Sketcher.Constraint("Horizontal", 27),
    Sketcher.Constraint("Vertical", 28),
    Sketcher.Constraint("Horizontal", 29),
    Sketcher.Constraint("Vertical", 30),
    Sketcher.Constraint("Horizontal", 31),
    Sketcher.Constraint("Horizontal", 1, 2, 4, 2),
    Sketcher.Constraint("Horizontal", 3, 2, 6, 2),
    Sketcher.Constraint("Horizontal", 5, 2, 8, 2),
    Sketcher.Constraint("Horizontal", 7, 2, 10, 2),
    Sketcher.Constraint("Horizontal", 9, 2, 12, 2),
    Sketcher.Constraint("Horizontal", 11, 2, 14, 2),
    Sketcher.Constraint("Horizontal", 13, 2, 16, 2),
    Sketcher.Constraint("Horizontal", 15, 2, 18, 2),
    Sketcher.Constraint("Horizontal", 17, 2, 20, 2),
    Sketcher.Constraint("Horizontal", 19, 2, 22, 2),
    Sketcher.Constraint("Horizontal", 21, 2, 24, 2),
    Sketcher.Constraint("Horizontal", 23, 2, 26, 2),
    Sketcher.Constraint("Horizontal", 25, 2, 28, 2),
    Sketcher.Constraint("Horizontal", 27, 2, 30, 2),
    Sketcher.Constraint("Equal", 3, 5),
    Sketcher.Constraint("Equal", 7, 9),
    Sketcher.Constraint("Equal", 11, 13),
    Sketcher.Constraint("Equal", 15, 17),
    Sketcher.Constraint("Equal", 19, 21),
    Sketcher.Constraint("Equal", 23, 25),
    Sketcher.Constraint("Equal", 27, 29),
    Sketcher.Constraint("DistanceX", 4, 2, 0, 2, Q("0.1 in")),
    Sketcher.Constraint("DistanceX", 0, 2, 8, 2, Q("0.1 in")),
    Sketcher.Constraint("DistanceX", 8, 2, 12, 2, Q("0.1 in")),
    Sketcher.Constraint("DistanceX", 12, 2, 16, 2, Q("0.1 in")),
    Sketcher.Constraint("DistanceX", 16, 2, 20, 2, Q("0.1 in")),
    Sketcher.Constraint("DistanceX", 20, 2, 24, 2, Q("0.1 in")),
    Sketcher.Constraint("DistanceX", 24, 2, 28, 2, Q("0.1 in")),
    Sketcher.Constraint("DistanceX", -1, 1, 1, 2, Q("0.1593001 in")),
    Sketcher.Constraint("DistanceX", 1, 1, 1, 2, 0.433382),
    Sketcher.Constraint("DistanceY", 0, 2, 0, 1, 0.491167),
    Sketcher.Constraint("DistanceY", 0, 2, -1, 1, 3.235829),
])
pad2 = doc.addObject("PartDesign::Pad", "Pad001")
body.addObject(pad2)
pad2.Profile = sketch8
pad2.Length = Q("0.075 in")

doc.recompute()
